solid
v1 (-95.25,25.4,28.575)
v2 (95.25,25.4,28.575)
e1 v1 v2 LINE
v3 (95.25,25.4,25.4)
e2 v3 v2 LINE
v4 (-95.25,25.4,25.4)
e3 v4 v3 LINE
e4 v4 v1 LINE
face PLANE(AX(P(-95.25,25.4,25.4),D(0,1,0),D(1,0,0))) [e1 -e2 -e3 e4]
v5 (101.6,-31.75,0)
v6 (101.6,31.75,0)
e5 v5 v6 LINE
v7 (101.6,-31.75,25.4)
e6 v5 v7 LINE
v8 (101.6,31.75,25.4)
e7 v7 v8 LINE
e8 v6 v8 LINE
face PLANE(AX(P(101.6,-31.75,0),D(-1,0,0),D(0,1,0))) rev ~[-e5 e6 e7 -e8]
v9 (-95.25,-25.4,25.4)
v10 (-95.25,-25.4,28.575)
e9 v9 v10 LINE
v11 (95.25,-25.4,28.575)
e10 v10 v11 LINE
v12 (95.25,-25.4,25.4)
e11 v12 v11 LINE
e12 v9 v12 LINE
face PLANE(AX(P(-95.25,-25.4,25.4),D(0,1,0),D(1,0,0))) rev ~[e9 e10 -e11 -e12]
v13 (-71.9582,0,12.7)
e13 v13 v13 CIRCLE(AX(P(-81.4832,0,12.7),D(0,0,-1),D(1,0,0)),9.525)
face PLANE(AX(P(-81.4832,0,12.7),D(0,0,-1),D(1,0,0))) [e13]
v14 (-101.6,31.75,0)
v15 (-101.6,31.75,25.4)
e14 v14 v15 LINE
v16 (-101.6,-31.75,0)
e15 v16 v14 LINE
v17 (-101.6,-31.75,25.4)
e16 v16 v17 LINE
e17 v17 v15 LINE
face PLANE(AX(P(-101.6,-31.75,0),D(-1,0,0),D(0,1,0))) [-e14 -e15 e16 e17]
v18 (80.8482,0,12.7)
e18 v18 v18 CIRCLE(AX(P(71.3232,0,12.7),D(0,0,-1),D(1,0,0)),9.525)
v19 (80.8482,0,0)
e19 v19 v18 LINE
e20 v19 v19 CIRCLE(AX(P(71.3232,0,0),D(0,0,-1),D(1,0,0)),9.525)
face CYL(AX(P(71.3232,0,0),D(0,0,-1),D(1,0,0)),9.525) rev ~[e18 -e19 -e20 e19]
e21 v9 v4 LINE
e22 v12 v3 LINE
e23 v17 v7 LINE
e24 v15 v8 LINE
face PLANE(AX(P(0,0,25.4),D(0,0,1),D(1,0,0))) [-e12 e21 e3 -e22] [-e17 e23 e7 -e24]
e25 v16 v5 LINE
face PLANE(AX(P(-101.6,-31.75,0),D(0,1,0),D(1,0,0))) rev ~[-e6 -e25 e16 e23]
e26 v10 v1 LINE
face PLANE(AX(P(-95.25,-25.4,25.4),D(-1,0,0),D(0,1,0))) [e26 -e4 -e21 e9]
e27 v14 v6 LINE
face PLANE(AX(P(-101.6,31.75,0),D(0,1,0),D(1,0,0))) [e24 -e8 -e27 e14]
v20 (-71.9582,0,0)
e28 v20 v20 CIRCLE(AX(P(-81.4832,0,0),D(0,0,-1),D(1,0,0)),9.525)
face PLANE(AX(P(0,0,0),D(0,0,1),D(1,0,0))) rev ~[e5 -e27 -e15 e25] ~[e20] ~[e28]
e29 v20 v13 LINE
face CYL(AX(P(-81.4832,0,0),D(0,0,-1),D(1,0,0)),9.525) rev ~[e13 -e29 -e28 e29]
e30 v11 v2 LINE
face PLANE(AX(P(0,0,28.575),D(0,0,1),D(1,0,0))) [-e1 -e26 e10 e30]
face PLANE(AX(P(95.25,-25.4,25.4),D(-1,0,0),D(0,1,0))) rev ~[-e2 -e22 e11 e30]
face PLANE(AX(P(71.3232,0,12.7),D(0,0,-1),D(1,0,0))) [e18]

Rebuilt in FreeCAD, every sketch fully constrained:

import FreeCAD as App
import Part
import Sketcher
from FreeCAD import Vector
Q = App.Units.Quantity

doc = App.newDocument("Part")
body = doc.addObject("PartDesign::Body", "Body")

# Sketch on XY plane
sketch1 = body.newObject("Sketcher::SketchObject", "Sketch")
sketch1.AttachmentSupport = (doc.getObject("XY_Plane"), [""])
sketch1.MapMode = "FlatFace"
sketch1.addGeometry(Part.LineSegment(Vector(-102, 32, 0), Vector(-102, -32, 0)), False)
sketch1.addGeometry(Part.LineSegment(Vector(-102, -32, 0), Vector(102, -32, 0)), False)
sketch1.addGeometry(Part.LineSegment(Vector(102, -32, 0), Vector(102, 32, 0)), False)
sketch1.addGeometry(Part.LineSegment(Vector(102, 32, 0), Vector(-102, 32, 0)), False)
sketch1.addConstraint(Sketcher.Constraint("Coincident", 0, 2, 1, 1))
sketch1.addConstraint(Sketcher.Constraint("Coincident", 1, 2, 2, 1))
sketch1.addConstraint(Sketcher.Constraint("Coincident", 2, 2, 3, 1))
sketch1.addConstraint(Sketcher.Constraint("Coincident", 3, 2, 0, 1))
sketch1.addConstraint(Sketcher.Constraint("Vertical", 0))
sketch1.addConstraint(Sketcher.Constraint("Horizontal", 1))
sketch1.addConstraint(Sketcher.Constraint("Vertical", 2))
sketch1.addConstraint(Sketcher.Constraint("Horizontal", 3))
sketch1.addConstraint(Sketcher.Constraint("Symmetric", 0, 2, 2, 2, -1, 1))
sketch1.addConstraint(Sketcher.Constraint("DistanceX", 1, 1, 1, 2, Q("8 in")))
sketch1.addConstraint(Sketcher.Constraint("DistanceY", 0, 2, 0, 1, Q("2.5 in")))
pad1 = body.newObject("PartDesign::Pad", "Pad")
pad1.Profile = sketch1
pad1.Length = Q("1 in")

# Sketch on XY plane
sketch2 = body.newObject("Sketcher::SketchObject", "Sketch001")
sketch2.AttachmentSupport = (doc.getObject("XY_Plane"), [""])
sketch2.MapMode = "FlatFace"
sketch2.addGeometry(Part.Circle(Vector(-81, 0, 0), Vector(0, 0, 1), 10), False)
sketch2.addGeometry(Part.Circle(Vector(71, 0, 0), Vector(0, 0, 1), 10), False)
sketch2.addConstraint(Sketcher.Constraint("Equal", 0, 1))
sketch2.addConstraint(Sketcher.Constraint("PointOnObject", 0, 3, -1))
sketch2.addConstraint(Sketcher.Constraint("PointOnObject", 1, 3, -1))
sketch2.addConstraint(Sketcher.Constraint("Diameter", 0, Q("0.75 in")))
sketch2.addConstraint(Sketcher.Constraint("DistanceX", 0, 3, -1, 1, Q("3.208 in")))
sketch2.addConstraint(Sketcher.Constraint("DistanceX", -1, 1, 1, 3, Q("2.808 in")))
pocket1 = body.newObject("PartDesign::Pocket", "Pocket")
pocket1.Profile = sketch2
pocket1.Length = Q("0.5 in")
pocket1.Reversed = True

# Sketch on XY plane
sketch3 = body.newObject("Sketcher::SketchObject", "Sketch002")
sketch3.AttachmentSupport = (doc.getObject("XY_Plane"), [""])
sketch3.MapMode = "FlatFace"
sketch3.AttachmentOffset = App.Placement(Vector(0, 0, 1 * 25.4), App.Rotation())
sketch3.addGeometry(Part.LineSegment(Vector(-95, 25, 0), Vector(-95, -25, 0)), False)
sketch3.addGeometry(Part.LineSegment(Vector(-95, -25, 0), Vector(95, -25, 0)), False)
sketch3.addGeometry(Part.LineSegment(Vector(95, -25, 0), Vector(95, 25, 0)), False)
sketch3.addGeometry(Part.LineSegment(Vector(95, 25, 0), Vector(-95, 25, 0)), False)
sketch3.addConstraint(Sketcher.Constraint("Coincident", 0, 2, 1, 1))
sketch3.addConstraint(Sketcher.Constraint("Coincident", 1, 2, 2, 1))
sketch3.addConstraint(Sketcher.Constraint("Coincident", 2, 2, 3, 1))
sketch3.addConstraint(Sketcher.Constraint("Coincident", 3, 2, 0, 1))
sketch3.addConstraint(Sketcher.Constraint("Vertical", 0))
sketch3.addConstraint(Sketcher.Constraint("Horizontal", 1))
sketch3.addConstraint(Sketcher.Constraint("Vertical", 2))
sketch3.addConstraint(Sketcher.Constraint("Horizontal", 3))
sketch3.addConstraint(Sketcher.Constraint("Symmetric", 0, 2, 2, 2, -1, 1))
sketch3.addConstraint(Sketcher.Constraint("DistanceY", 0, 2, 0, 1, Q("2 in")))
sketch3.addConstraint(Sketcher.Constraint("DistanceX", 1, 1, 1, 2, Q("7.5 in")))
pad2 = body.newObject("PartDesign::Pad", "Pad001")
pad2.Profile = sketch3
pad2.Length = Q("0.125 in")

doc.recompute()
